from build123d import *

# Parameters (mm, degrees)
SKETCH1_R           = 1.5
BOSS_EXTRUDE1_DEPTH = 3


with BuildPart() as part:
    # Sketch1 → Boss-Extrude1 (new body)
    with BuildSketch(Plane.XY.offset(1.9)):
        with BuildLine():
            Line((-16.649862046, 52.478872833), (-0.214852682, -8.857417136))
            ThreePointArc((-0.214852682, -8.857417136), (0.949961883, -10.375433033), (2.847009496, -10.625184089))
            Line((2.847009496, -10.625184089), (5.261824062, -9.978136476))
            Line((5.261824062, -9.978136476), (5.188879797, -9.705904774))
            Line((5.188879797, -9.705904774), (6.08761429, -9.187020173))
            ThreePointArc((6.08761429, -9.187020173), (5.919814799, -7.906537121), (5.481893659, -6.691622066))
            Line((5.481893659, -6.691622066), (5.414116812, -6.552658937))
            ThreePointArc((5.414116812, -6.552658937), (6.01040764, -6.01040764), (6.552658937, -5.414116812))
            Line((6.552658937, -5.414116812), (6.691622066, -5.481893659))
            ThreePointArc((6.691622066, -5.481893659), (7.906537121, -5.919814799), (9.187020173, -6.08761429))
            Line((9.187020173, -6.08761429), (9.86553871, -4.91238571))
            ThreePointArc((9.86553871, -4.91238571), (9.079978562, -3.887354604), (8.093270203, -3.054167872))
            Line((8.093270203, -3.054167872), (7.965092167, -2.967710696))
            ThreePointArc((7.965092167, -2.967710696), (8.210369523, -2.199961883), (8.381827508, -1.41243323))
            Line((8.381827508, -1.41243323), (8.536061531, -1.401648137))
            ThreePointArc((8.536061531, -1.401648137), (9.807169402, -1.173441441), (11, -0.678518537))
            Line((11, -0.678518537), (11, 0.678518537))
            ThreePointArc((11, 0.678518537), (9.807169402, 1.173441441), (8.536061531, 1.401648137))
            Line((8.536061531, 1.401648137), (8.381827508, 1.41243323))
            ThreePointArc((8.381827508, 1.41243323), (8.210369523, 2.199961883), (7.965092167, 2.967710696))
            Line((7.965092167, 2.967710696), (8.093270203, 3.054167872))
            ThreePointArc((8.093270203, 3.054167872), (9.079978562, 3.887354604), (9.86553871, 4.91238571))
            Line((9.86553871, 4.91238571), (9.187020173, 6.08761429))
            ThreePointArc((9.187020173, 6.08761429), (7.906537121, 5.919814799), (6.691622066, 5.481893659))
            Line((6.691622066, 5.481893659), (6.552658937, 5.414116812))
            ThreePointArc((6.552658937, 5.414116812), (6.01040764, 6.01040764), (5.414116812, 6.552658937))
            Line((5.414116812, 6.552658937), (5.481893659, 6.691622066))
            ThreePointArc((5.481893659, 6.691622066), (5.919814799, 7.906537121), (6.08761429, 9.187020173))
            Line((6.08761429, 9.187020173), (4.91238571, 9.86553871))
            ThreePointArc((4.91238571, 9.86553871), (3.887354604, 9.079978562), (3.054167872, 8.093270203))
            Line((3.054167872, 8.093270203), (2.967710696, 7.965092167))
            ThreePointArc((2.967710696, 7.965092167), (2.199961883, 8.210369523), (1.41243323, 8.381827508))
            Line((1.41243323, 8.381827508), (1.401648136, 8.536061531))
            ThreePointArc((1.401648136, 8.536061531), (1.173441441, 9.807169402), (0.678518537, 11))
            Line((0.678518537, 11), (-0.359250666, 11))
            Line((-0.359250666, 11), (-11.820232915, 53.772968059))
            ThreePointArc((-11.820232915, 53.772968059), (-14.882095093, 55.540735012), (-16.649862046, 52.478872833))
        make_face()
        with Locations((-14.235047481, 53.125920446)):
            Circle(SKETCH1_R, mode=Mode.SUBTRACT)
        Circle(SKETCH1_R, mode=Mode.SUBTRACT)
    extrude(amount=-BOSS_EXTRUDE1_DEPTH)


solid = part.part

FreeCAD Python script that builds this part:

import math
import FreeCAD as App
import Part
import Sketcher

V = App.Vector
Q = App.Units.Quantity

doc = App.newDocument("Part")
params = doc.addObject("Spreadsheet::Sheet", "Params")
for row, (alias, value) in enumerate([
    ("sketch1_diameter", "3 mm"),
    ("sketch1_radius", "6 mm"),
    ("sketch1_radius2", "2.5 mm"),
    ("sketch1_radius3", "8.5 mm"),
    ("sketch1_length", "63.5 mm"),
    ("pad1_length", "3 mm"),
], start=1):
    params.set(f"A{row}", alias)
    params.set(f"B{row}", "=" + value)
    params.setAlias(f"B{row}", alias)

body = doc.addObject("PartDesign::Body", "Body")

# Sketch on XY plane
sketch1 = body.newObject("Sketcher::SketchObject", "Sketch")
sketch1.AttachmentSupport = (doc.getObject("XY_Plane"), [""])
sketch1.MapMode = "FlatFace"
sketch1.AttachmentOffset = App.Placement(V(0, 0, 1.9), App.Rotation())
sketch1.addGeometry(Part.LineSegment(V(-16.65, 52.48, 0), V(-0.21, -8.86, 0)), False)
sketch1.addGeometry(Part.ArcOfCircle(Part.Circle(V(2.2, -8.21, 0), V(0, 0, 1), 2.5), math.radians(-165), math.radians(-75)), False)
sketch1.addGeometry(Part.LineSegment(V(2.85, -10.63, 0), V(5.26, -9.98, 0)), False)
sketch1.addGeometry(Part.LineSegment(V(5.26, -9.98, 0), V(5.19, -9.71, 0)), False)
sketch1.addGeometry(Part.LineSegment(V(5.19, -9.71, 0), V(6.09, -9.19, 0)), False)
sketch1.addGeometry(Part.ArcOfCircle(Part.Circle(V(0.09, -9.32, 0), V(0, 0, 1), 6), math.radians(1), math.radians(26)), False)
sketch1.addGeometry(Part.LineSegment(V(5.48, -6.69, 0), V(5.41, -6.55, 0)), False)
sketch1.addGeometry(Part.ArcOfCircle(Part.Circle(V(0, 0, 0), V(0, 0, 1), 8.5), math.radians(-50.43), math.radians(-39.57)), False)
sketch1.addGeometry(Part.LineSegment(V(6.55, -5.41, 0), V(6.69, -5.48, 0)), False)
sketch1.addGeometry(Part.ArcOfCircle(Part.Circle(V(9.32, -0.09, 0), V(0, 0, 1), 6), math.radians(-116), math.radians(-91)), False)
sketch1.addGeometry(Part.LineSegment(V(9.19, -6.09, 0), V(9.87, -4.91, 0)), False)
sketch1.addGeometry(Part.ArcOfCircle(Part.Circle(V(4.74, -8.03, 0), V(0, 0, 1), 6), math.radians(31), math.radians(56)), False)
sketch1.addGeometry(Part.LineSegment(V(8.09, -3.05, 0), V(7.97, -2.97, 0)), False)
sketch1.addGeometry(Part.ArcOfCircle(Part.Circle(V(0, 0, 0), V(0, 0, 1), 8.5), math.radians(-20.43), math.radians(-9.57)), False)
sketch1.addGeometry(Part.LineSegment(V(8.38, -1.41, 0), V(8.54, -1.4, 0)), False)
sketch1.addGeometry(Part.ArcOfCircle(Part.Circle(V(8.12, 4.58, 0), V(0, 0, 1), 6), math.radians(-86), math.radians(-61)), False)
sketch1.addGeometry(Part.LineSegment(V(11, -0.68, 0), V(11, 0.68, 0)), False)
sketch1.addGeometry(Part.ArcOfCircle(Part.Circle(V(8.12, -4.58, 0), V(0, 0, 1), 6), math.radians(61), math.radians(86)), False)
sketch1.addGeometry(Part.LineSegment(V(8.54, 1.4, 0), V(8.38, 1.41, 0)), False)
sketch1.addGeometry(Part.ArcOfCircle(Part.Circle(V(0, 0, 0), V(0, 0, 1), 8.5), math.radians(9.57), math.radians(20.43)), False)
sketch1.addGeometry(Part.LineSegment(V(7.97, 2.97, 0), V(8.09, 3.05, 0)), False)
sketch1.addGeometry(Part.ArcOfCircle(Part.Circle(V(4.74, 8.03, 0), V(0, 0, 1), 6), math.radians(-56), math.radians(-31)), False)
sketch1.addGeometry(Part.LineSegment(V(9.87, 4.91, 0), V(9.19, 6.09, 0)), False)
sketch1.addGeometry(Part.ArcOfCircle(Part.Circle(V(9.32, 0.09, 0), V(0, 0, 1), 6), math.radians(91), math.radians(116)), False)
sketch1.addGeometry(Part.LineSegment(V(6.69, 5.48, 0), V(6.55, 5.41, 0)), False)
sketch1.addGeometry(Part.ArcOfCircle(Part.Circle(V(0, 0, 0), V(0, 0, 1), 8.5), math.radians(39.57), math.radians(50.43)), False)
sketch1.addGeometry(Part.LineSegment(V(5.41, 6.55, 0), V(5.48, 6.69, 0)), False)
sketch1.addGeometry(Part.ArcOfCircle(Part.Circle(V(0.09, 9.32, 0), V(0, 0, 1), 6), math.radians(-26), math.radians(-1)), False)
sketch1.addGeometry(Part.LineSegment(V(6.09, 9.19, 0), V(4.91, 9.87, 0)), False)
sketch1.addGeometry(Part.ArcOfCircle(Part.Circle(V(8.03, 4.74, 0), V(0, 0, 1), 6), math.radians(121), math.radians(146)), False)
sketch1.addGeometry(Part.LineSegment(V(3.05, 8.09, 0), V(2.97, 7.97, 0)), False)
sketch1.addGeometry(Part.ArcOfCircle(Part.Circle(V(0, 0, 0), V(0, 0, 1), 8.5), math.radians(69.57), math.radians(80.43)), False)
sketch1.addGeometry(Part.LineSegment(V(1.41, 8.38, 0), V(1.4, 8.54, 0)), False)
sketch1.addGeometry(Part.ArcOfCircle(Part.Circle(V(-4.58, 8.12, 0), V(0, 0, 1), 6), math.radians(4), math.radians(29)), False)
sketch1.addGeometry(Part.LineSegment(V(0.68, 11, 0), V(-0.36, 11, 0)), False)
sketch1.addGeometry(Part.LineSegment(V(-0.36, 11, 0), V(-11.82, 53.77, 0)), False)
sketch1.addGeometry(Part.ArcOfCircle(Part.Circle(V(-14.24, 53.13, 0), V(0, 0, 1), 2.5), math.radians(15), math.radians(195)), False)
sketch1.addGeometry(Part.Circle(V(0, 0, 0), V(0, 0, 1), 1.5), False)
sketch1.addGeometry(Part.Circle(V(-14.24, 53.13, 0), V(0, 0, 1), 1.5), False)
sketch1.addConstraint(Sketcher.Constraint("Tangent", 0, 2, 1, 1))
sketch1.addConstraint(Sketcher.Constraint("Tangent", 1, 2, 2, 1))
sketch1.addConstraint(Sketcher.Constraint("Coincident", 2, 2, 3, 1))
sketch1.addConstraint(Sketcher.Constraint("Coincident", 3, 2, 4, 1))
sketch1.addConstraint(Sketcher.Constraint("Coincident", 4, 2, 5, 1))
sketch1.addConstraint(Sketcher.Constraint("Tangent", 5, 2, 6, 1))
sketch1.addConstraint(Sketcher.Constraint("Coincident", 6, 2, 7, 1))
sketch1.addConstraint(Sketcher.Constraint("Coincident", 7, 2, 8, 1))
sketch1.addConstraint(Sketcher.Constraint("Tangent", 8, 2, 9, 1))
sketch1.addConstraint(Sketcher.Constraint("Coincident", 9, 2, 10, 1))
sketch1.addConstraint(Sketcher.Constraint("Coincident", 10, 2, 11, 1))
sketch1.addConstraint(Sketcher.Constraint("Tangent", 11, 2, 12, 1))
sketch1.addConstraint(Sketcher.Constraint("Coincident", 12, 2, 13, 1))
sketch1.addConstraint(Sketcher.Constraint("Coincident", 13, 2, 14, 1))
sketch1.addConstraint(Sketcher.Constraint("Tangent", 14, 2, 15, 1))
sketch1.addConstraint(Sketcher.Constraint("Coincident", 15, 2, 16, 1))
sketch1.addConstraint(Sketcher.Constraint("Coincident", 16, 2, 17, 1))
sketch1.addConstraint(Sketcher.Constraint("Tangent", 17, 2, 18, 1))
sketch1.addConstraint(Sketcher.Constraint("Coincident", 18, 2, 19, 1))
sketch1.addConstraint(Sketcher.Constraint("Coincident", 19, 2, 20, 1))
sketch1.addConstraint(Sketcher.Constraint("Tangent", 20, 2, 21, 1))
sketch1.addConstraint(Sketcher.Constraint("Coincident", 21, 2, 22, 1))
sketch1.addConstraint(Sketcher.Constraint("Coincident", 22, 2, 23, 1))
sketch1.addConstraint(Sketcher.Constraint("Tangent", 23, 2, 24, 1))
sketch1.addConstraint(Sketcher.Constraint("Coincident", 24, 2, 25, 1))
sketch1.addConstraint(Sketcher.Constraint("Coincident", 25, 2, 26, 1))
sketch1.addConstraint(Sketcher.Constraint("Tangent", 26, 2, 27, 1))
sketch1.addConstraint(Sketcher.Constraint("Coincident", 27, 2, 28, 1))
sketch1.addConstraint(Sketcher.Constraint("Coincident", 28, 2, 29, 1))
sketch1.addConstraint(Sketcher.Constraint("Tangent", 29, 2, 30, 1))
sketch1.addConstraint(Sketcher.Constraint("Coincident", 30, 2, 31, 1))
sketch1.addConstraint(Sketcher.Constraint("Coincident", 31, 2, 32, 1))
sketch1.addConstraint(Sketcher.Constraint("Tangent", 32, 2, 33, 1))
sketch1.addConstraint(Sketcher.Constraint("Coincident", 33, 2, 34, 1))
sketch1.addConstraint(Sketcher.Constraint("Coincident", 34, 2, 35, 1))
sketch1.addConstraint(Sketcher.Constraint("Tangent", 35, 2, 36, 1))
sketch1.addConstraint(Sketcher.Constraint("Tangent", 36, 2, 0, 1))
sketch1.addConstraint(Sketcher.Constraint("Vertical", 16))
sketch1.addConstraint(Sketcher.Constraint("Horizontal", 34))
sketch1.addConstraint(Sketcher.Constraint("Coincident", 7, 3, -1, 1))
sketch1.addConstraint(Sketcher.Constraint("Coincident", 13, 3, -1, 1))
sketch1.addConstraint(Sketcher.Constraint("Coincident", 19, 3, -1, 1))
sketch1.addConstraint(Sketcher.Constraint("Coincident", 25, 3, -1, 1))
sketch1.addConstraint(Sketcher.Constraint("Coincident", 31, 3, -1, 1))
sketch1.addConstraint(Sketcher.Constraint("Coincident", 37, 3, -1, 1))
sketch1.addConstraint(Sketcher.Constraint("Coincident", 38, 3, 36, 3))
sketch1.addConstraint(Sketcher.Constraint("Equal", 5, 9))
sketch1.addConstraint(Sketcher.Constraint("Equal", 9, 11))
sketch1.addConstraint(Sketcher.Constraint("Equal", 7, 13))
sketch1.addConstraint(Sketcher.Constraint("Equal", 11, 15))
sketch1.addConstraint(Sketcher.Constraint("Equal", 15, 17))
sketch1.addConstraint(Sketcher.Constraint("Equal", 13, 19))
sketch1.addConstraint(Sketcher.Constraint("Equal", 17, 21))
sketch1.addConstraint(Sketcher.Constraint("Equal", 21, 23))
sketch1.addConstraint(Sketcher.Constraint("Equal", 19, 25))
sketch1.addConstraint(Sketcher.Constraint("Equal", 23, 27))
sketch1.addConstraint(Sketcher.Constraint("Equal", 27, 29))
sketch1.addConstraint(Sketcher.Constraint("Equal", 25, 31))
sketch1.addConstraint(Sketcher.Constraint("Equal", 29, 33))
sketch1.addConstraint(Sketcher.Constraint("Equal", 1, 36))
sketch1.addConstraint(Sketcher.Constraint("Equal", 37, 38))
sketch1.addConstraint(Sketcher.Constraint("Symmetric", 15, 3, 17, 3, -1))
sketch1.addConstraint(Sketcher.Constraint("Symmetric", 11, 3, 21, 3, -1))
sketch1.addConstraint(Sketcher.Constraint("Symmetric", 9, 3, 23, 3, -1))
sketch1.addConstraint(Sketcher.Constraint("Symmetric", 5, 3, 27, 3, -1))
sketch1.addConstraint(Sketcher.Constraint("Perpendicular", 0, 2))
sketch1.addConstraint(Sketcher.Constraint("Perpendicular", 2, 3))
sketch1.addConstraint(Sketcher.Constraint("Perpendicular", 4, 22))
sketch1.addConstraint(Sketcher.Constraint("Perpendicular", 6, 24))
sketch1.addConstraint(Sketcher.Constraint("Perpendicular", 8, 26))
sketch1.addConstraint(Sketcher.Constraint("Perpendicular", 10, 28))
sketch1.addConstraint(Sketcher.Constraint("Perpendicular", 12, 30))
sketch1.addConstraint(Sketcher.Constraint("Perpendicular", 14, 32))
sketch1.addConstraint(Sketcher.Constraint("Parallel", 3, 35))
sketch1.addConstraint(Sketcher.Constraint("Vertical", 14, 2, 17, 2))
sketch1.addConstraint(Sketcher.Constraint("Vertical", 12, 2, 19, 2))
sketch1.addConstraint(Sketcher.Constraint("Vertical", 10, 2, 21, 2))
sketch1.addConstraint(Sketcher.Constraint("Vertical", 9, 2, 22, 2))
sketch1.addConstraint(Sketcher.Constraint("Vertical", 8, 2, 23, 2))
sketch1.addConstraint(Sketcher.Constraint("Vertical", 4, 2, 27, 2))
sketch1.addConstraint(Sketcher.Constraint("Equal", 6, 8))
sketch1.addConstraint(Sketcher.Constraint("Equal", 8, 12))
sketch1.addConstraint(Sketcher.Constraint("Equal", 12, 14))
sketch1.addConstraint(Sketcher.Constraint("Equal", 22, 28))
sketch1.addConstraint(Sketcher.Constraint("Equal", 26, 30))
sketch1.addConstraint(Sketcher.Constraint("Equal", 30, 32))
sketch1.addConstraint(Sketcher.Constraint("Diameter", 37, 3.0))
sketch1.addConstraint(Sketcher.Constraint("Radius", 5, 6.0))
sketch1.addConstraint(Sketcher.Constraint("Radius", 1, 2.5))
sketch1.addConstraint(Sketcher.Constraint("Radius", 7, 8.5))
sketch1.addConstraint(Sketcher.Constraint("Angle", 0, Q("-75 deg")))
sketch1.addConstraint(Sketcher.Constraint("Angle", 4, Q("30 deg")))
sketch1.addConstraint(Sketcher.Constraint("Angle", 6, Q("116 deg")))
sketch1.addConstraint(Sketcher.Constraint("Angle", 12, Q("146 deg")))
sketch1.addConstraint(Sketcher.Constraint("Angle", 14, Q("4 deg")))
sketch1.addConstraint(Sketcher.Constraint("DistanceX", -1, 1, 15, 2, 11.0))
sketch1.addConstraint(Sketcher.Constraint("DistanceY", -1, 1, 33, 2, 11.0))
sketch1.addConstraint(Sketcher.Constraint("Distance", 0, 63.5))
sketch1.addConstraint(Sketcher.Constraint("Distance", 2, 2.5))
sketch1.addConstraint(Sketcher.Constraint("DistanceX", 34, 2, 34, 1, 1.037769))
sketch1.addConstraint(Sketcher.Constraint("DistanceX", 11, 3, 4, 2, 1.349502))
sketch1.addConstraint(Sketcher.Constraint("DistanceY", 4, 2, 5, 2, 2.495398))
sketch1.addConstraint(Sketcher.Constraint("DistanceX", 8, 2, 17, 3, 1.425901))
sketch1.addConstraint(Sketcher.Constraint("DistanceY", 11, 3, 8, 2, 2.5465))
sketch1.addConstraint(Sketcher.Constraint("DistanceX", 8, 2, 9, 2, 2.495398))
sketch1.addConstraint(Sketcher.Constraint("DistanceX", 19, 2, 29, 3, 0.063301))
sketch1.addConstraint(Sketcher.Constraint("DistanceY", 29, 3, 22, 2, 1.349502))
sketch1.addConstraint(Sketcher.Constraint("DistanceX", 34, 2, 32, 2, 1.760899))
sketch1.addConstraint(Sketcher.Constraint("DistanceX", -1, 1, 1, 3, 2.199962))
sketch1.setExpression("Constraints[86]", "Params.sketch1_diameter")
sketch1.setExpression("Constraints[87]", "Params.sketch1_radius")
sketch1.setExpression("Constraints[88]", "Params.sketch1_radius2")
sketch1.setExpression("Constraints[89]", "Params.sketch1_radius3")
sketch1.setExpression("Constraints[97]", "Params.sketch1_length")
pad1 = body.newObject("PartDesign::Pad", "Pad")
pad1.Profile = sketch1
pad1.setExpression("Length", "Params.pad1_length")
pad1.Reversed = True

doc.recompute()
